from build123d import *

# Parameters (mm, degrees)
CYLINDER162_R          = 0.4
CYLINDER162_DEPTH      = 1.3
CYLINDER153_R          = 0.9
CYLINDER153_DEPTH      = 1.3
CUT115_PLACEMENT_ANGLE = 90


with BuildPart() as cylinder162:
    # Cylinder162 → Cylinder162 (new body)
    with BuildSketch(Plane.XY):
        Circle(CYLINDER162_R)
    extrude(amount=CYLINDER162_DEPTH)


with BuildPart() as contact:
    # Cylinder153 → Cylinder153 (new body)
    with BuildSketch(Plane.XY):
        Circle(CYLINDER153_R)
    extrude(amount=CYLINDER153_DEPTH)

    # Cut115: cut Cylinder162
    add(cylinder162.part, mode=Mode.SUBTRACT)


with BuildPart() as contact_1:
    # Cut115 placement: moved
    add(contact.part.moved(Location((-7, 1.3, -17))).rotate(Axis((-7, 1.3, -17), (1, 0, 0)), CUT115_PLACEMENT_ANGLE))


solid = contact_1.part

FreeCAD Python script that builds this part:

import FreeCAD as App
import Part
import Sketcher
Q = App.Units.Quantity

doc = App.newDocument("Part")
params = doc.addObject("Spreadsheet::Sheet", "Params")
for row, (alias, value) in enumerate([
    ("sketch1_diameter", "0.8 mm"),
    ("pad1_length", "1.3 mm"),
    ("sketch2_diameter", "1.8 mm"),
    ("pad2_length", "1.3 mm"),
], start=1):
    params.set(f"A{row}", alias)
    params.set(f"B{row}", "=" + value)
    params.setAlias(f"B{row}", alias)

body = doc.addObject("PartDesign::Body", "Body")

# Sketch on XY plane
sketch1 = body.newObject("Sketcher::SketchObject", "Sketch")
sketch1.AttachmentSupport = (doc.getObject("XY_Plane"), [""])
sketch1.MapMode = "FlatFace"
sketch1.addGeometry(Part.Circle(App.Vector(0, 0, 0), App.Vector(0, 0, 1), 0.4), False)
sketch1.addConstraint([
    Sketcher.Constraint("Coincident", 0, 3, -1, 1),
    Sketcher.Constraint("Diameter", 0, Q("0.8 mm")),
])
sketch1.setExpression("Constraints[1]", "Params.sketch1_diameter")
pad1 = body.newObject("PartDesign::Pad", "Pad")
pad1.Profile = sketch1
pad1.setExpression("Length", "Params.pad1_length")
body2 = doc.addObject("PartDesign::Body", "Body001")

# Sketch on XY plane
sketch2 = body2.newObject("Sketcher::SketchObject", "Sketch001")
sketch2.AttachmentSupport = (doc.getObject("XY_Plane001"), [""])
sketch2.MapMode = "FlatFace"
sketch2.addGeometry(Part.Circle(App.Vector(0, 0, 0), App.Vector(0, 0, 1), 0.9), False)
sketch2.addConstraint([
    Sketcher.Constraint("Coincident", 0, 3, -1, 1),
    Sketcher.Constraint("Diameter", 0, Q("1.8 mm")),
])
sketch2.setExpression("Constraints[1]", "Params.sketch2_diameter")
pad2 = body2.newObject("PartDesign::Pad", "Pad001")
pad2.Profile = sketch2
pad2.setExpression("Length", "Params.pad2_length")
doc.recompute()

boolean = body2.newObject("PartDesign::Boolean", "Boolean")
boolean.Type = "Cut"
boolean.addObjects([body])
body3 = doc.addObject("PartDesign::Body", "Body002")
doc.recompute()

body2.Placement = App.Placement(App.Vector(-7, 1.3, -17), App.Rotation(App.Vector(1, 0, 0), 90))
boolean2 = body3.newObject("PartDesign::Boolean", "Boolean001")
boolean2.Type = "Fuse"
boolean2.addObjects([body2])

doc.recompute()
